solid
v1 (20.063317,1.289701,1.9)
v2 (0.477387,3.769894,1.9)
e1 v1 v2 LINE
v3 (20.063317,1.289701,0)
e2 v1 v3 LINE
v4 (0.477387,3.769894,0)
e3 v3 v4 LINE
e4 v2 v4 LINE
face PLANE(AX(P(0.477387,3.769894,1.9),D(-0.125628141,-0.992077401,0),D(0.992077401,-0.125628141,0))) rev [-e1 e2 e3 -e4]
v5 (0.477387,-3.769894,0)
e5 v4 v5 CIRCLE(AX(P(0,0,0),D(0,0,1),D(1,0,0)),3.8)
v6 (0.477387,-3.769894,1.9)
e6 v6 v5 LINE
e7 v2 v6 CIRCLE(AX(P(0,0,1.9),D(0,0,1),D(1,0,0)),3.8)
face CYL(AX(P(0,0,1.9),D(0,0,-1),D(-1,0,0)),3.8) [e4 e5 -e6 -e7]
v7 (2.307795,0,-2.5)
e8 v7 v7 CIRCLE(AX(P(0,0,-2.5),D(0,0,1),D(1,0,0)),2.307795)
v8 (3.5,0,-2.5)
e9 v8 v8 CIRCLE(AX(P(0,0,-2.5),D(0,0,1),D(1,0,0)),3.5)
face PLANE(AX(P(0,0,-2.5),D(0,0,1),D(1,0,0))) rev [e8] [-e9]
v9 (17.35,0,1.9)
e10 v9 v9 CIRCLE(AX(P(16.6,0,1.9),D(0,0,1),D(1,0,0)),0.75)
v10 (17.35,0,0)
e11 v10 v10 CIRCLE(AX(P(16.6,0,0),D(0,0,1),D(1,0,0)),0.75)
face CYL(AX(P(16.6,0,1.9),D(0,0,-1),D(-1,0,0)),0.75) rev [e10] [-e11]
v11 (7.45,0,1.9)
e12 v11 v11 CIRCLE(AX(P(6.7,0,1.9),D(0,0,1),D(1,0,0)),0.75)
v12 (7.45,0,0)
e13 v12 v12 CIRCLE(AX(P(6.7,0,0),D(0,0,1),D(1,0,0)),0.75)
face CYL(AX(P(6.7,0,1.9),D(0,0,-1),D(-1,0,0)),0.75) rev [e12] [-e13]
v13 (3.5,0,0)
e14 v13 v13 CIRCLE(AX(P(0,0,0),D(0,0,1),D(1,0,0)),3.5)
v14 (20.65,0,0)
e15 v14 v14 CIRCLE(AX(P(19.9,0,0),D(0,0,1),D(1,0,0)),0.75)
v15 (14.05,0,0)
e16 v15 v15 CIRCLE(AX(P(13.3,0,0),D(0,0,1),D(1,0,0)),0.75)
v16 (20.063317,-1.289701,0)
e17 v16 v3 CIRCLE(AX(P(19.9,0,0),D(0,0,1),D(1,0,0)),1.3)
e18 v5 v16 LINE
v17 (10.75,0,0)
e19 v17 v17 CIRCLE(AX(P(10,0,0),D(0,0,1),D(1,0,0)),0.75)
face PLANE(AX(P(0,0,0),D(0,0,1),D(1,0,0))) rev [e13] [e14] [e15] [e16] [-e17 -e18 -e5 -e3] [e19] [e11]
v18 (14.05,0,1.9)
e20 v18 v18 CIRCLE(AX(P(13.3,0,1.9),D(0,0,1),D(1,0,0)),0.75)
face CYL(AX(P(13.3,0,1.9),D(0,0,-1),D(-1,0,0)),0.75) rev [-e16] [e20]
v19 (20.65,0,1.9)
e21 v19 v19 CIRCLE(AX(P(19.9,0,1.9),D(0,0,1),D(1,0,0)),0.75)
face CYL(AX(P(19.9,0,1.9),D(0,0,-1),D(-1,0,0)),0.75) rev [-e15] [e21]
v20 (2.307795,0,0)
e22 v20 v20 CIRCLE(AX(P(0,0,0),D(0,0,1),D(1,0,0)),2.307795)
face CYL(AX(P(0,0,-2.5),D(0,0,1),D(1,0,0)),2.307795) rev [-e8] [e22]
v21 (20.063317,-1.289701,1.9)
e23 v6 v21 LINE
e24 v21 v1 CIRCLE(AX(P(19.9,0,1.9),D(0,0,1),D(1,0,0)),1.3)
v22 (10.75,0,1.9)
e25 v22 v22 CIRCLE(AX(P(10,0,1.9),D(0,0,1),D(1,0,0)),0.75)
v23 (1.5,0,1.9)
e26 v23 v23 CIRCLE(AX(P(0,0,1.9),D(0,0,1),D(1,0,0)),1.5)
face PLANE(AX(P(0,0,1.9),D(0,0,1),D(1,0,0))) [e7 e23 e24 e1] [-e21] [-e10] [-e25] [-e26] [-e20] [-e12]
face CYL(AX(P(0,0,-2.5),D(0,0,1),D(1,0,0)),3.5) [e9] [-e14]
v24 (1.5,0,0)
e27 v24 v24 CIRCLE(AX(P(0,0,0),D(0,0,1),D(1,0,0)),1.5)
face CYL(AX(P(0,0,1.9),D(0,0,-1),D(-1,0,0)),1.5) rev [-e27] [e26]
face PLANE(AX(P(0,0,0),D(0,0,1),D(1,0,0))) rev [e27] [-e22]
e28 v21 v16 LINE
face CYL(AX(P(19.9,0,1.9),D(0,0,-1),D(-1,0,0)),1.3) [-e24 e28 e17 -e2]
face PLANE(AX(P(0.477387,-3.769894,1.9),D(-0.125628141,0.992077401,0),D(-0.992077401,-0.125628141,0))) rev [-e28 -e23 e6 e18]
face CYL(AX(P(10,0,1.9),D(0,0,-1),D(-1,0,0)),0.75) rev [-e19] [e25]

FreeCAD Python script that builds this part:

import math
import FreeCAD as App
import Part
import Sketcher

V = App.Vector
Q = App.Units.Quantity

doc = App.newDocument("Part")
body = doc.addObject("PartDesign::Body", "Body")

# Sketch on XY plane
sketch1 = body.newObject("Sketcher::SketchObject", "Sketch")
sketch1.AttachmentSupport = (doc.getObject("XY_Plane"), [""])
sketch1.MapMode = "FlatFace"
sketch1.addGeometry([
    Part.LineSegment(V(20.1, 1.3, 0), V(0.5, 3.8, 0)),  # 0
    Part.ArcOfCircle(Part.Circle(V(0, 0, 0), V(0, 0, 1), 3.8), math.radians(83), math.radians(277)),  # 1
    Part.LineSegment(V(0.5, -3.8, 0), V(20.1, -1.3, 0)),  # 2
    Part.ArcOfCircle(Part.Circle(V(19.9, 0, 0), V(0, 0, 1), 1.3), math.radians(-83), math.radians(83)),  # 3
    Part.Circle(V(19.9, 0, 0), V(0, 0, 1), 0.8),  # 4
    Part.Circle(V(16.6, 0, 0), V(0, 0, 1), 0.8),  # 5
    Part.Circle(V(13.3, 0, 0), V(0, 0, 1), 0.8),  # 6
    Part.Circle(V(10, 0, 0), V(0, 0, 1), 0.8),  # 7
    Part.Circle(V(6.7, 0, 0), V(0, 0, 1), 0.8),  # 8
    Part.Circle(V(0, 0, 0), V(0, 0, 1), 1.5),  # 9
], False)
sketch1.addConstraint([
    Sketcher.Constraint("Tangent", 0, 2, 1, 1),
    Sketcher.Constraint("Tangent", 1, 2, 2, 1),
    Sketcher.Constraint("Tangent", 2, 2, 3, 1),
    Sketcher.Constraint("Tangent", 3, 2, 0, 1),
    Sketcher.Constraint("Coincident", 1, 3, -1, 1),
    Sketcher.Constraint("Coincident", 9, 3, -1, 1),
    Sketcher.Constraint("Coincident", 4, 3, 3, 3),
    Sketcher.Constraint("Equal", 4, 5),
    Sketcher.Constraint("Equal", 5, 6),
    Sketcher.Constraint("Equal", 6, 7),
    Sketcher.Constraint("Equal", 7, 8),
    Sketcher.Constraint("PointOnObject", 3, 3, -1),
    Sketcher.Constraint("PointOnObject", 5, 3, -1),
    Sketcher.Constraint("PointOnObject", 6, 3, -1),
    Sketcher.Constraint("PointOnObject", 7, 3, -1),
    Sketcher.Constraint("PointOnObject", 8, 3, -1),
    Sketcher.Constraint("Diameter", 9, Q("3 mm")),
    Sketcher.Constraint("Diameter", 4, Q("1.5 mm")),
    Sketcher.Constraint("Radius", 1, Q("3.8 mm")),
    Sketcher.Constraint("Radius", 3, Q("1.3 mm")),
    Sketcher.Constraint("DistanceX", -1, 1, 7, 3, Q("10 mm")),
    Sketcher.Constraint("DistanceX", -1, 1, 3, 3, Q("19.9 mm")),
    Sketcher.Constraint("DistanceX", -1, 1, 5, 3, Q("16.6 mm")),
    Sketcher.Constraint("DistanceX", -1, 1, 6, 3, Q("13.3 mm")),
    Sketcher.Constraint("DistanceX", -1, 1, 8, 3, Q("6.7 mm")),
])
pad1 = body.newObject("PartDesign::Pad", "Pad")
pad1.Profile = sketch1
pad1.Length = 1.9

# Sketch on XY plane
sketch2 = body.newObject("Sketcher::SketchObject", "Sketch001")
sketch2.AttachmentSupport = (doc.getObject("XY_Plane"), [""])
sketch2.MapMode = "FlatFace"
sketch2.addGeometry([
    Part.Circle(V(0, 0, 0), V(0, 0, 1), 3.5),
    Part.Circle(V(0, 0, 0), V(0, 0, 1), 2.3),
], False)
sketch2.addConstraint([
    Sketcher.Constraint("Coincident", 0, 3, -1, 1),
    Sketcher.Constraint("Coincident", 1, 3, -1, 1),
    Sketcher.Constraint("Diameter", 0, Q("7 mm")),
    Sketcher.Constraint("Diameter", 1, Q("4.615591 mm")),
])
pad2 = body.newObject("PartDesign::Pad", "Pad001")
pad2.Profile = sketch2
pad2.Length = 2.5
pad2.Reversed = True

doc.recompute()
